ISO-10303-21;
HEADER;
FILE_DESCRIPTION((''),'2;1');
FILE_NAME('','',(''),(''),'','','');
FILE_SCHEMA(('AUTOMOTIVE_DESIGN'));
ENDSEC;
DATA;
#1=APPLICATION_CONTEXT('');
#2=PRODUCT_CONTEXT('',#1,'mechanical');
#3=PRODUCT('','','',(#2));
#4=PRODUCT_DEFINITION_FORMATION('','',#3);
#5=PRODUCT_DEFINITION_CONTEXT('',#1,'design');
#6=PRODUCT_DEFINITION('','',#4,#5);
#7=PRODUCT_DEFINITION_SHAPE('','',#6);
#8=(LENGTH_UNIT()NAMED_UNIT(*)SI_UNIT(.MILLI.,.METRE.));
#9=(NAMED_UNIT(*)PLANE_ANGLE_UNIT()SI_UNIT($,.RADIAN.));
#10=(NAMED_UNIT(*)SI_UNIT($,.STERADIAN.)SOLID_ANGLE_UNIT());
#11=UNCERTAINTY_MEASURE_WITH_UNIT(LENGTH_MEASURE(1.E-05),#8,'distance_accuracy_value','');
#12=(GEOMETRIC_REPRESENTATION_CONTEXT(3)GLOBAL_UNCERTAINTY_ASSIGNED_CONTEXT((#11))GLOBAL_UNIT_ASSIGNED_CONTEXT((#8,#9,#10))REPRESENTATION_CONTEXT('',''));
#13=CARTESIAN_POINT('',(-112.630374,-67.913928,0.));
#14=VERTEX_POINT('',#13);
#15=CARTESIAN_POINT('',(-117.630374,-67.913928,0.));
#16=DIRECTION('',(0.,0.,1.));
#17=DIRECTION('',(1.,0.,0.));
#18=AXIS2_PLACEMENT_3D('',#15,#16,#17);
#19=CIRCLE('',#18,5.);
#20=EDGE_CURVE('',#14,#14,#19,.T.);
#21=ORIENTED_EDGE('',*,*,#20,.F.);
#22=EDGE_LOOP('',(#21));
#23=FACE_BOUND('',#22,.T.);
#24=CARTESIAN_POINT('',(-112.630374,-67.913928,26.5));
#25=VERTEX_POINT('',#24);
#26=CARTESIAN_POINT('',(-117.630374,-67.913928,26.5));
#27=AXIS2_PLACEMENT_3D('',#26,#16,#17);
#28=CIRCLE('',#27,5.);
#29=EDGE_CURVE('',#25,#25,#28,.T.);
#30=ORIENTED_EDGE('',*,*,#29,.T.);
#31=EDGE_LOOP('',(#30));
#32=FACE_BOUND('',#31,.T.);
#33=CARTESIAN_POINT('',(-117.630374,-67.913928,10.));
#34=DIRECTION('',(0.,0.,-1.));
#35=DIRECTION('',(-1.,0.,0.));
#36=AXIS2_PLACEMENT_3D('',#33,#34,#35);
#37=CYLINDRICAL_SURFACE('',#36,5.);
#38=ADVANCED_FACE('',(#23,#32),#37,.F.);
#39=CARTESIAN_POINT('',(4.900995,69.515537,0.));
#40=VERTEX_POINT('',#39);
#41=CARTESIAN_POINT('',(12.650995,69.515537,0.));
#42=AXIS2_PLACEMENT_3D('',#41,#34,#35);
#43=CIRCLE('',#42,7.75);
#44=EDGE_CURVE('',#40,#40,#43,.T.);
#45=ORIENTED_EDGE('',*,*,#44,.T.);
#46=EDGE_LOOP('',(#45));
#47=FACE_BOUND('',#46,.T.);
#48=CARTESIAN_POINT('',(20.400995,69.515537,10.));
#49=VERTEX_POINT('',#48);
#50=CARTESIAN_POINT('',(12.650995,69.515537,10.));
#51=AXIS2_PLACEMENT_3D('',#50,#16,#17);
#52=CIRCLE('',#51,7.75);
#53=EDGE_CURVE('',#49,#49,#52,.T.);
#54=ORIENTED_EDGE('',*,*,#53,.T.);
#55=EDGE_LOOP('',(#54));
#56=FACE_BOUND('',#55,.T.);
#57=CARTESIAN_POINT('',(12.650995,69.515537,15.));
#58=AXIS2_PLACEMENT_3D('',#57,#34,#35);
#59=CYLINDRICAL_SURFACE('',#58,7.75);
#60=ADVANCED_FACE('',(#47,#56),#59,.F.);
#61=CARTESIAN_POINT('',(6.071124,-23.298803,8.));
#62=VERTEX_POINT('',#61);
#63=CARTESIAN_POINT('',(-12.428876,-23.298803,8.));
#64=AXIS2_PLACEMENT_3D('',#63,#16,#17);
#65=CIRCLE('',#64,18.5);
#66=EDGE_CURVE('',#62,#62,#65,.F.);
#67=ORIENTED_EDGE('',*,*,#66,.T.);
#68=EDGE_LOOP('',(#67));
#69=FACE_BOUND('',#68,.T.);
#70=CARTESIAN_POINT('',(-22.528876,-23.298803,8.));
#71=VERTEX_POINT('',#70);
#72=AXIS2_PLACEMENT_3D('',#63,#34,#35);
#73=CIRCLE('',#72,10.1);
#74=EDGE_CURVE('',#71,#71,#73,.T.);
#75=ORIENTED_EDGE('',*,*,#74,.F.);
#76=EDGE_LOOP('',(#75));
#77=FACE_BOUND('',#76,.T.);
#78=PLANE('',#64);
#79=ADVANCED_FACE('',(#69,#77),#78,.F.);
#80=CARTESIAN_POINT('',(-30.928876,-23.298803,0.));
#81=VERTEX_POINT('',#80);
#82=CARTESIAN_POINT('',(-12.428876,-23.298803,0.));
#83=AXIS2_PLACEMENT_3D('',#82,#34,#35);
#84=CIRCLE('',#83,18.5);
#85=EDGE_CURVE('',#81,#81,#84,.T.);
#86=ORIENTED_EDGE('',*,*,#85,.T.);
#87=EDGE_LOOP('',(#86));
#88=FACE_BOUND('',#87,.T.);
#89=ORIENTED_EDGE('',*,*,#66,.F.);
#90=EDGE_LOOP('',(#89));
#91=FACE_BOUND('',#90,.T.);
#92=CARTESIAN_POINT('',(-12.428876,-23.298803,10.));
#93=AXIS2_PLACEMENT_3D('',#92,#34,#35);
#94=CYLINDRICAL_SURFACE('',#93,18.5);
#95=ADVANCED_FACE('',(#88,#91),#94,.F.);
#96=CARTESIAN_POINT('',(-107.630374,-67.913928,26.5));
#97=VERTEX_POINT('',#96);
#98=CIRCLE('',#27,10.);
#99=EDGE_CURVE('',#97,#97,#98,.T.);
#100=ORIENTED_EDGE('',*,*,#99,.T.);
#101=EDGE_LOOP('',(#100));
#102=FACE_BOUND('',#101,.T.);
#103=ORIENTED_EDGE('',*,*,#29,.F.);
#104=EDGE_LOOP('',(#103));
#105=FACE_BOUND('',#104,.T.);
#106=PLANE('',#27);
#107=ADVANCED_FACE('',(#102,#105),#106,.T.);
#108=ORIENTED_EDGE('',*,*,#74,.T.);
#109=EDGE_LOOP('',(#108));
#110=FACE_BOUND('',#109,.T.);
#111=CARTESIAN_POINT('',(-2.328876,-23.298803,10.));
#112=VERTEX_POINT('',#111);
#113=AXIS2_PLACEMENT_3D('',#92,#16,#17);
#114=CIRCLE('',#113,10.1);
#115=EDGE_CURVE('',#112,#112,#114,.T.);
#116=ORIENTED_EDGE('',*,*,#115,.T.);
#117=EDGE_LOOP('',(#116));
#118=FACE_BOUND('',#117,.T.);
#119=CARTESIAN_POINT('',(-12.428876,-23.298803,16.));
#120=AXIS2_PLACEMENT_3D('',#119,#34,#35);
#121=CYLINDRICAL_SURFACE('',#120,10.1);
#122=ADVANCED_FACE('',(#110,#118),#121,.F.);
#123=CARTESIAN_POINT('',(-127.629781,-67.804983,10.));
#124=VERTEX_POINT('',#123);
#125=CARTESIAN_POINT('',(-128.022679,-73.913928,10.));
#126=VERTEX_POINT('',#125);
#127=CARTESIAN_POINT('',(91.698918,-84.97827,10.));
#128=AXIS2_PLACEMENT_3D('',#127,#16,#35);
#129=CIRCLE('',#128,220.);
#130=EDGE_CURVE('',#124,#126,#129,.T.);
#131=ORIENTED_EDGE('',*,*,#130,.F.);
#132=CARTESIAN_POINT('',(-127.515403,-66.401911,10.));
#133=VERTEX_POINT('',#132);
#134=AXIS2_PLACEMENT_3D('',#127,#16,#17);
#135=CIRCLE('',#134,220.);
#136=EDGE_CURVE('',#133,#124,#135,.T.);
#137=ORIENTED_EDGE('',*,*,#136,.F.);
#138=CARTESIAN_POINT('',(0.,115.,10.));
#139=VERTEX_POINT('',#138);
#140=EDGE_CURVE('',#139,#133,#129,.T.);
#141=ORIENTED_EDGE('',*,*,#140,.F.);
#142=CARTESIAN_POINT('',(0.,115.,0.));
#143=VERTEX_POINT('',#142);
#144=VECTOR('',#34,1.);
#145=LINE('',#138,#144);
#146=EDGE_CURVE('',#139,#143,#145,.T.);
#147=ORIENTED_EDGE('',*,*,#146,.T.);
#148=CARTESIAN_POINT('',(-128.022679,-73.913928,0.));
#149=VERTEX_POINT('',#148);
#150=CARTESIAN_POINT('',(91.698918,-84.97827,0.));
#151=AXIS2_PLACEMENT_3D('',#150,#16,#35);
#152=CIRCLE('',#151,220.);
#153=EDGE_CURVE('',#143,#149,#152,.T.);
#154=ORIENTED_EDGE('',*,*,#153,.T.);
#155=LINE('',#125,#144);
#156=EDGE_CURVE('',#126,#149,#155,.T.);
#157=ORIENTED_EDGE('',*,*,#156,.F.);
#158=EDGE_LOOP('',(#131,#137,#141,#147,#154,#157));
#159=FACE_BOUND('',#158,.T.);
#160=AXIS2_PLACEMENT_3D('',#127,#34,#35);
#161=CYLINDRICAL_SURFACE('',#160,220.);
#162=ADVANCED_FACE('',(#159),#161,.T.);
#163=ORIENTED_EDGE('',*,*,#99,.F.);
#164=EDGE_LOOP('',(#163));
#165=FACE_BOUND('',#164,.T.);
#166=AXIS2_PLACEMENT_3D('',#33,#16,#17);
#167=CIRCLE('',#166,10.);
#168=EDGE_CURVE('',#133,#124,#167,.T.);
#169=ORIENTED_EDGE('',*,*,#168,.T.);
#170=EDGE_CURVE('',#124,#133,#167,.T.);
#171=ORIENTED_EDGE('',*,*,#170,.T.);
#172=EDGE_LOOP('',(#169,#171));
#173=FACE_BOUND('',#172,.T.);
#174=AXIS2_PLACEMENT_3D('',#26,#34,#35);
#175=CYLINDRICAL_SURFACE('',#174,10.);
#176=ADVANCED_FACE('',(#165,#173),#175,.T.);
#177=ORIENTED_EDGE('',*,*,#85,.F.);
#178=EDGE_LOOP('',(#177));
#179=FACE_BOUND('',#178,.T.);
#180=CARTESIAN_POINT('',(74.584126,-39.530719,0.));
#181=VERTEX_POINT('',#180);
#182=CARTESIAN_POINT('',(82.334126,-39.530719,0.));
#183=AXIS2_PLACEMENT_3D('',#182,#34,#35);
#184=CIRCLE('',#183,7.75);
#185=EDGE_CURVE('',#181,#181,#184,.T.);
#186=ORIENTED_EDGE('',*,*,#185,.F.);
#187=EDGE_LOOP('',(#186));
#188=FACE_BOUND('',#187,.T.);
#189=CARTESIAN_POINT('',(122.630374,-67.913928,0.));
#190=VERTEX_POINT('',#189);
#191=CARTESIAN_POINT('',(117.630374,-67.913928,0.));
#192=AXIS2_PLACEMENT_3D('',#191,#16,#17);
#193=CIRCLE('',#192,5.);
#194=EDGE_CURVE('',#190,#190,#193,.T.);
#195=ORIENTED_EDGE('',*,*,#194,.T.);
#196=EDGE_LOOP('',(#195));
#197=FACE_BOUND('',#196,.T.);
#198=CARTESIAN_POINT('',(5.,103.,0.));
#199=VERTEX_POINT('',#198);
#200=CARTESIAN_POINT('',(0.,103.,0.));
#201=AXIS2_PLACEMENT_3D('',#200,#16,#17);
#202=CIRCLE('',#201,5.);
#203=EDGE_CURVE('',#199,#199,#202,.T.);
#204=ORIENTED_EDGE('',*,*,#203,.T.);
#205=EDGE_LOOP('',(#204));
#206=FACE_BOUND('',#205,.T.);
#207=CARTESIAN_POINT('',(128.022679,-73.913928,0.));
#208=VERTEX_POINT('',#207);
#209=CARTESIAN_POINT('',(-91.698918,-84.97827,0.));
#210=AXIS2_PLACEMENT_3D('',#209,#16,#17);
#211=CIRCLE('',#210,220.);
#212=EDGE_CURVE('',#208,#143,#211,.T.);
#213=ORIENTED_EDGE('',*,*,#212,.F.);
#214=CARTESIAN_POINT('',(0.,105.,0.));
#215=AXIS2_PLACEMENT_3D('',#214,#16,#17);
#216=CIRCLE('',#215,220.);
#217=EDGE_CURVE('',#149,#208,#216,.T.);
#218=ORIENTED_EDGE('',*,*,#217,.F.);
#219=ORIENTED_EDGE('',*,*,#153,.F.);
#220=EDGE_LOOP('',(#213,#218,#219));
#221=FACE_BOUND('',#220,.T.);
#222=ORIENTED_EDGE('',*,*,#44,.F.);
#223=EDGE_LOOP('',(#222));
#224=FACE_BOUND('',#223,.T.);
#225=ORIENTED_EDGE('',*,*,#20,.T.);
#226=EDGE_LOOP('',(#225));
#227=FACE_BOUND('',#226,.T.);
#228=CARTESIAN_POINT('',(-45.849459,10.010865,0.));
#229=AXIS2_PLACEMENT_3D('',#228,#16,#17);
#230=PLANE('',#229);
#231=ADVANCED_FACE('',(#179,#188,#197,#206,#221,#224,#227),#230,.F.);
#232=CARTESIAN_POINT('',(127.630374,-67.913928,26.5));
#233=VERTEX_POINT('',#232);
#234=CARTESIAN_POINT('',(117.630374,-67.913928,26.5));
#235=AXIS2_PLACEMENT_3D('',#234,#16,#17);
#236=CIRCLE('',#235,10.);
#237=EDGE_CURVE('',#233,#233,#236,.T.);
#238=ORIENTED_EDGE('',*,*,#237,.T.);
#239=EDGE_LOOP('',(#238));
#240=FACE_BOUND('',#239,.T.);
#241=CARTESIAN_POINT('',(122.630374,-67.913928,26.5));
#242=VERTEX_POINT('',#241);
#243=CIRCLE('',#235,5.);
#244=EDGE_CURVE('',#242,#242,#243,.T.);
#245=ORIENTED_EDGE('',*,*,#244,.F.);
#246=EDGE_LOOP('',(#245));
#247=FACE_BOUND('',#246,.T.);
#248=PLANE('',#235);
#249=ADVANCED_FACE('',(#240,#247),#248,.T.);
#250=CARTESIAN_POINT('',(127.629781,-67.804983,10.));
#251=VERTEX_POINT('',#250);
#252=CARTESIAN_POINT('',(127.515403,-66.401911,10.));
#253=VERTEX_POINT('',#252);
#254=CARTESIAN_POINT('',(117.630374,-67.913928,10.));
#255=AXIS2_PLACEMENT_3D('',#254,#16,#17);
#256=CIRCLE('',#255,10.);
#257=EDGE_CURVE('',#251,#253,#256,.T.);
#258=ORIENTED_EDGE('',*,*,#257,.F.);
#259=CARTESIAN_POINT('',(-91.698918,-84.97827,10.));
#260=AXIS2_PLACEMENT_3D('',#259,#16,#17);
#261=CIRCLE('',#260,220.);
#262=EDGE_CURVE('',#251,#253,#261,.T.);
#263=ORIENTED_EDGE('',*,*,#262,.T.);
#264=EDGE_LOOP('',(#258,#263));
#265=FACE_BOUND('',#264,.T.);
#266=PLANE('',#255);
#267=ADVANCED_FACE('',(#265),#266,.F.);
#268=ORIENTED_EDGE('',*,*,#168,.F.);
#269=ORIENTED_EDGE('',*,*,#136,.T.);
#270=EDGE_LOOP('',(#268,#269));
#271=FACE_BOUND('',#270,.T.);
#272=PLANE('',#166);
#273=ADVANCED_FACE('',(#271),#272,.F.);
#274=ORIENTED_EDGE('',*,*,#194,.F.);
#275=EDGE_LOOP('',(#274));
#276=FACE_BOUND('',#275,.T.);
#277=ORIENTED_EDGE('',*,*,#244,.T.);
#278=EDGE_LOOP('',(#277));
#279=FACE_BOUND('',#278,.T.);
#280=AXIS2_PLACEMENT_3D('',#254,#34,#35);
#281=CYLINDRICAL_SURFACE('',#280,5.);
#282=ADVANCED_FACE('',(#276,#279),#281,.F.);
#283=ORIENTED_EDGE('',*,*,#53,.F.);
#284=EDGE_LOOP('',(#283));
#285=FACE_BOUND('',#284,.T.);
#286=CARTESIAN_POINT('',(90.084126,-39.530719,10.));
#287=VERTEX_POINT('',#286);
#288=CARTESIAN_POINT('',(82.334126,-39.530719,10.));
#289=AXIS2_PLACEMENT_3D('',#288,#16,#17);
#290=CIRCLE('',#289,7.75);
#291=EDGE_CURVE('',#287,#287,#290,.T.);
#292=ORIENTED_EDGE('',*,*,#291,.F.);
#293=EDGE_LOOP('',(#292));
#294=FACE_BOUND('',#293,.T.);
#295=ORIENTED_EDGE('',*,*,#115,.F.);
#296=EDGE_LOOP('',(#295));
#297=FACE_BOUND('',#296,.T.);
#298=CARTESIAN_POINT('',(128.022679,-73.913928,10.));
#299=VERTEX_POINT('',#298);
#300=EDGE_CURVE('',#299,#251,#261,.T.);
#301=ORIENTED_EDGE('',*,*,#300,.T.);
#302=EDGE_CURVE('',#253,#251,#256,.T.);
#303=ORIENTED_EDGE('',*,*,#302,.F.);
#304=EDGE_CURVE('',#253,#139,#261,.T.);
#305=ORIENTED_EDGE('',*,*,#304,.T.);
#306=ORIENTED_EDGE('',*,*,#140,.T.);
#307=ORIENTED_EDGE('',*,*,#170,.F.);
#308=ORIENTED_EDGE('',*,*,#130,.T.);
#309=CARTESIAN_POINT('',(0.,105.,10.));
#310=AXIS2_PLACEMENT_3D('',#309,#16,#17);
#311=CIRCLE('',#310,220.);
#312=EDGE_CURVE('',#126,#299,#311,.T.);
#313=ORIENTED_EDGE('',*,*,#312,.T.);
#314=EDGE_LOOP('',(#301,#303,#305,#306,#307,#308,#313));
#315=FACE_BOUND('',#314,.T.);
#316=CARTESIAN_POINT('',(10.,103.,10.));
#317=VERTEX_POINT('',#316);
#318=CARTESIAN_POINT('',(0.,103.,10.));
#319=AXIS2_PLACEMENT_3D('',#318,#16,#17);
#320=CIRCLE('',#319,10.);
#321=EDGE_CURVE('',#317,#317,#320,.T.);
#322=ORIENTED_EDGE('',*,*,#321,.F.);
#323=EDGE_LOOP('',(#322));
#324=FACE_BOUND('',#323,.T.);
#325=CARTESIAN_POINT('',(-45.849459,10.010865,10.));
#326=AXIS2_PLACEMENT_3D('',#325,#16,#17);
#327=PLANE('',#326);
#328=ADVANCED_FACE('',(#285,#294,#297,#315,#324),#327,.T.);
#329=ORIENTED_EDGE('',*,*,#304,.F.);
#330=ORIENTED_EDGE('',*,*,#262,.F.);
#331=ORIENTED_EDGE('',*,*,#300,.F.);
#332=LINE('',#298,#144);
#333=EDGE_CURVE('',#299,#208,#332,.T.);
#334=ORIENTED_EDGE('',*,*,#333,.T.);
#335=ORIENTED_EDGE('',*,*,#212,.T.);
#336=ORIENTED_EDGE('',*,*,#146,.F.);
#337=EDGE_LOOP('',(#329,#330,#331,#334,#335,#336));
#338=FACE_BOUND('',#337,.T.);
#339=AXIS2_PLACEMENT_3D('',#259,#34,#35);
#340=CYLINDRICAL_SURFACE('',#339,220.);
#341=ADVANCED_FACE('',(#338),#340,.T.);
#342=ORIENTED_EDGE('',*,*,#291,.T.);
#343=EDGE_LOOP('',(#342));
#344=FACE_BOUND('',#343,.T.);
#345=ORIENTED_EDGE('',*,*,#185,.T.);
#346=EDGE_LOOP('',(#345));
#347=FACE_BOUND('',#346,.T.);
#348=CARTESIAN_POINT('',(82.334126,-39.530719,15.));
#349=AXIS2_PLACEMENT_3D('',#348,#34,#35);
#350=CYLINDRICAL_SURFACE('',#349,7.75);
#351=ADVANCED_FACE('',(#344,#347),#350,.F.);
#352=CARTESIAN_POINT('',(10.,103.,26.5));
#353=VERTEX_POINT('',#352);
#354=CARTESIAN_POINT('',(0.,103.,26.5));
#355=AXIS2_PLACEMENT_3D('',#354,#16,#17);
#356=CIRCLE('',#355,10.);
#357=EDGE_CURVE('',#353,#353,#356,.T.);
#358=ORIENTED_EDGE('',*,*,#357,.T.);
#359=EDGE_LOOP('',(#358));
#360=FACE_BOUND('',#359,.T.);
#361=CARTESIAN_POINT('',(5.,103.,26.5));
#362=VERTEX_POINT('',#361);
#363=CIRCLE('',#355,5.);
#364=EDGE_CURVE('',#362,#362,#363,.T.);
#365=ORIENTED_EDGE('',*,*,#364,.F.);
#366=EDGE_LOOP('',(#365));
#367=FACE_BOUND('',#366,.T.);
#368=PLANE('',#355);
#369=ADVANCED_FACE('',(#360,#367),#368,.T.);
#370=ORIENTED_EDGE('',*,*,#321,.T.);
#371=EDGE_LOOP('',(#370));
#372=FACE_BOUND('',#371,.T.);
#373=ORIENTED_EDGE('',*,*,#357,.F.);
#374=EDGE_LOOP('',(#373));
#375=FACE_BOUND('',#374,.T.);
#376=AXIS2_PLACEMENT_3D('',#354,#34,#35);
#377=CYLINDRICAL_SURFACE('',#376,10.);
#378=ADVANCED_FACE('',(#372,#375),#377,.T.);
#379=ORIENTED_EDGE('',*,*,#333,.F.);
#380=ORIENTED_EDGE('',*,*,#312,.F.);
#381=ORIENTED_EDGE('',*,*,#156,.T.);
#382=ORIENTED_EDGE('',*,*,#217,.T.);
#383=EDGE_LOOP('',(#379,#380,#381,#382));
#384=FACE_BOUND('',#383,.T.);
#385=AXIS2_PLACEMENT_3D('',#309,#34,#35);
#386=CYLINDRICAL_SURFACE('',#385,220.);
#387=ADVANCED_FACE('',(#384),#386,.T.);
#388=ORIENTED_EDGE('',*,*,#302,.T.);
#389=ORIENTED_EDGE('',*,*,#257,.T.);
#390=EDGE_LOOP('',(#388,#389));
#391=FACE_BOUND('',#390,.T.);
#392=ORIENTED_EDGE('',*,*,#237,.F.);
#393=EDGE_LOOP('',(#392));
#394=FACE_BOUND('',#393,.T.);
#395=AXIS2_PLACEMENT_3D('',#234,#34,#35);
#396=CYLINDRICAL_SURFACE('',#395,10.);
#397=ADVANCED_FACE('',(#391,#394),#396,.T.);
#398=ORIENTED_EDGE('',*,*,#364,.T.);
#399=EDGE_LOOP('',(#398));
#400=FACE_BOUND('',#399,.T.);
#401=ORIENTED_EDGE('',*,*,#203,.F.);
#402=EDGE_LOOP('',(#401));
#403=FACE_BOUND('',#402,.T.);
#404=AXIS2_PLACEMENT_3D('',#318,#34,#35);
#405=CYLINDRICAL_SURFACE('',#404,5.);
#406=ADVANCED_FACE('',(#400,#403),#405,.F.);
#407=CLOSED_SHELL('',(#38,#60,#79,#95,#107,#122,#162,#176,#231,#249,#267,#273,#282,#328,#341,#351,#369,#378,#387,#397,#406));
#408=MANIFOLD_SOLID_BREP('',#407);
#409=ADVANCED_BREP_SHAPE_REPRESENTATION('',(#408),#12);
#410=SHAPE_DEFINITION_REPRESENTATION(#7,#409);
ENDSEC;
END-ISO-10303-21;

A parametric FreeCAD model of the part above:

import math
import FreeCAD as App
import Part
import Sketcher

V = App.Vector

doc = App.newDocument("Part")
body = doc.addObject("PartDesign::Body", "Body")

# Sketch on XY plane
sketch1 = doc.addObject("Sketcher::SketchObject", "Sketch")
body.addObject(sketch1)
sketch1.AttachmentSupport = (doc.XY_Plane, [""])
sketch1.MapMode = "FlatFace"
sketch1.addGeometry(Part.ArcOfCircle(Part.Circle(V(91.698918, -84.97827, 0), V(0, 0, 1), 220), math.radians(114.633558), math.radians(177.117238)), False)
sketch1.addGeometry(Part.ArcOfCircle(Part.Circle(V(0, 105, 0), V(0, 0, 1), 220), math.radians(-125.585788), math.radians(-54.414212)), False)
sketch1.addGeometry(Part.ArcOfCircle(Part.Circle(V(-91.698918, -84.97827, 0), V(0, 0, 1), 220), math.radians(2.882762), math.radians(65.366442)), False)
sketch1.addGeometry(Part.Circle(V(117.630374, -67.913928, 0), V(0, 0, 1), 5), False)
sketch1.addGeometry(Part.Circle(V(-117.630374, -67.913928, 0), V(0, 0, 1), 5), False)
sketch1.addGeometry(Part.Circle(V(0, 103, 0), V(0, 0, 1), 5), False)
sketch1.addConstraint(Sketcher.Constraint("Coincident", 0, 2, 1, 1))
sketch1.addConstraint(Sketcher.Constraint("Coincident", 1, 2, 2, 1))
sketch1.addConstraint(Sketcher.Constraint("Coincident", 2, 2, 0, 1))
sketch1.addConstraint(Sketcher.Constraint("Equal", 0, 1))
sketch1.addConstraint(Sketcher.Constraint("Equal", 1, 2))
sketch1.addConstraint(Sketcher.Constraint("Equal", 3, 4))
sketch1.addConstraint(Sketcher.Constraint("Equal", 4, 5))
sketch1.addConstraint(Sketcher.Constraint("Symmetric", 0, 3, 2, 3, -2))
sketch1.addConstraint(Sketcher.Constraint("Symmetric", 3, 3, 4, 3, -2))
sketch1.addConstraint(Sketcher.Constraint("PointOnObject", 1, 3, -2))
sketch1.addConstraint(Sketcher.Constraint("PointOnObject", 5, 3, -2))
sketch1.addConstraint(Sketcher.Constraint("Diameter", 3, 10.0))
sketch1.addConstraint(Sketcher.Constraint("Radius", 0, 220.0))
sketch1.addConstraint(Sketcher.Constraint("DistanceY", -1, 1, 1, 3, 105.0))
sketch1.addConstraint(Sketcher.Constraint("DistanceY", -1, 1, 5, 3, 103.0))
sketch1.addConstraint(Sketcher.Constraint("DistanceY", -1, 1, 2, 2, 115.0))
sketch1.addConstraint(Sketcher.Constraint("DistanceY", 0, 2, 4, 3, 6.0))
sketch1.addConstraint(Sketcher.Constraint("DistanceX", -1, 1, 0, 3, 91.698918))
sketch1.addConstraint(Sketcher.Constraint("DistanceX", 4, 3, 3, 3, 235.260748))
pad1 = doc.addObject("PartDesign::Pad", "Pad")
body.addObject(pad1)
pad1.Profile = sketch1
pad1.Length = 10

# Sketch on XY plane
sketch2 = doc.addObject("Sketcher::SketchObject", "Sketch001")
body.addObject(sketch2)
sketch2.AttachmentSupport = (doc.XY_Plane, [""])
sketch2.MapMode = "FlatFace"
sketch2.AttachmentOffset = App.Placement(V(0, 0, 10), App.Rotation())
sketch2.addGeometry(Part.Circle(V(0, 103, 0), V(0, 0, 1), 10), False)
sketch2.addGeometry(Part.Circle(V(0, 103, 0), V(0, 0, 1), 5), False)
sketch2.addGeometry(Part.Circle(V(-117.630374, -67.913928, 0), V(0, 0, 1), 10), False)
sketch2.addGeometry(Part.Circle(V(-117.630374, -67.913928, 0), V(0, 0, 1), 5), False)
sketch2.addGeometry(Part.Circle(V(117.630374, -67.913928, 0), V(0, 0, 1), 10), False)
sketch2.addGeometry(Part.Circle(V(117.630374, -67.913928, 0), V(0, 0, 1), 5), False)
sketch2.addConstraint(Sketcher.Constraint("Coincident", 1, 3, 0, 3))
sketch2.addConstraint(Sketcher.Constraint("Coincident", 3, 3, 2, 3))
sketch2.addConstraint(Sketcher.Constraint("Coincident", 5, 3, 4, 3))
sketch2.addConstraint(Sketcher.Constraint("Equal", 0, 2))
sketch2.addConstraint(Sketcher.Constraint("Equal", 1, 3))
sketch2.addConstraint(Sketcher.Constraint("Equal", 2, 4))
sketch2.addConstraint(Sketcher.Constraint("Equal", 3, 5))
sketch2.addConstraint(Sketcher.Constraint("Symmetric", 2, 3, 4, 3, -2))
sketch2.addConstraint(Sketcher.Constraint("PointOnObject", 0, 3, -2))
sketch2.addConstraint(Sketcher.Constraint("Diameter", 0, 20.0))
sketch2.addConstraint(Sketcher.Constraint("Diameter", 1, 10.0))
sketch2.addConstraint(Sketcher.Constraint("DistanceY", -1, 1, 0, 3, 103.0))
sketch2.addConstraint(Sketcher.Constraint("DistanceY", 2, 3, -1, 1, 67.913928))
sketch2.addConstraint(Sketcher.Constraint("DistanceX", 2, 3, 4, 3, 235.260748))
pad2 = doc.addObject("PartDesign::Pad", "Pad001")
body.addObject(pad2)
pad2.Profile = sketch2
pad2.Length = 16.5

# Sketch on XY plane
sketch3 = doc.addObject("Sketcher::SketchObject", "Sketch002")
body.addObject(sketch3)
sketch3.AttachmentSupport = (doc.XY_Plane, [""])
sketch3.MapMode = "FlatFace"
sketch3.addGeometry(Part.Circle(V(12.650995, 69.515537, 0), V(0, 0, 1), 7.75), False)
sketch3.addGeometry(Part.Circle(V(82.334126, -39.530719, 0), V(0, 0, 1), 7.75), False)
sketch3.addGeometry(Part.Circle(V(-12.428876, -23.298803, 0), V(0, 0, 1), 15), False)
sketch3.addConstraint(Sketcher.Constraint("Equal", 0, 1))
sketch3.addConstraint(Sketcher.Constraint("Diameter", 2, 30.0))
sketch3.addConstraint(Sketcher.Constraint("Diameter", 0, 15.5))
sketch3.addConstraint(Sketcher.Constraint("DistanceX", 2, 3, 1, 3, 94.763002))
sketch3.addConstraint(Sketcher.Constraint("DistanceY", 1, 3, -1, 1, 39.530719))
sketch3.addConstraint(Sketcher.Constraint("DistanceX", 0, 3, 1, 3, 69.683131))
sketch3.addConstraint(Sketcher.Constraint("DistanceY", 2, 3, 0, 3, 92.81434))
sketch3.addConstraint(Sketcher.Constraint("DistanceX", -1, 1, 0, 3, 12.650995))
sketch3.addConstraint(Sketcher.Constraint("DistanceY", -1, 1, 0, 3, 69.515537))
pocket1 = doc.addObject("PartDesign::Pocket", "Pocket")
body.addObject(pocket1)
pocket1.Profile = sketch3
pocket1.Length = 15
pocket1.Reversed = True

# Sketch on XY plane
sketch4 = doc.addObject("Sketcher::SketchObject", "Sketch003")
body.addObject(sketch4)
sketch4.AttachmentSupport = (doc.XY_Plane, [""])
sketch4.MapMode = "FlatFace"
sketch4.addGeometry(Part.Circle(V(-12.428876, -23.298803, 0), V(0, 0, 1), 18.5), False)
sketch4.addConstraint(Sketcher.Constraint("Diameter", 0, 37.0))
sketch4.addConstraint(Sketcher.Constraint("DistanceX", 0, 3, -1, 1, 12.428876))
sketch4.addConstraint(Sketcher.Constraint("DistanceY", 0, 3, -1, 1, 23.298803))
pocket2 = doc.addObject("PartDesign::Pocket", "Pocket001")
body.addObject(pocket2)
pocket2.Profile = sketch4
pocket2.Length = 10
pocket2.Reversed = True

# Sketch on XY plane
sketch5 = doc.addObject("Sketcher::SketchObject", "Sketch004")
body.addObject(sketch5)
sketch5.AttachmentSupport = (doc.XY_Plane, [""])
sketch5.MapMode = "FlatFace"
sketch5.AttachmentOffset = App.Placement(V(0, 0, 8), App.Rotation())
sketch5.addGeometry(Part.Circle(V(-12.428876, -23.298803, 0), V(0, 0, 1), 18.5), False)
sketch5.addConstraint(Sketcher.Constraint("Diameter", 0, 37.0))
sketch5.addConstraint(Sketcher.Constraint("DistanceX", 0, 3, -1, 1, 12.428876))
sketch5.addConstraint(Sketcher.Constraint("DistanceY", 0, 3, -1, 1, 23.298803))
pad3 = doc.addObject("PartDesign::Pad", "Pad002")
body.addObject(pad3)
pad3.Profile = sketch5
pad3.Length = 2

# Sketch on XY plane
sketch6 = doc.addObject("Sketcher::SketchObject", "Sketch005")
body.addObject(sketch6)
sketch6.AttachmentSupport = (doc.XY_Plane, [""])
sketch6.MapMode = "FlatFace"
sketch6.AttachmentOffset = App.Placement(V(0, 0, 8), App.Rotation())
sketch6.addGeometry(Part.Circle(V(-12.428876, -23.298803, 0), V(0, 0, 1), 10.1), False)
sketch6.addConstraint(Sketcher.Constraint("Diameter", 0, 20.2))
sketch6.addConstraint(Sketcher.Constraint("DistanceX", 0, 3, -1, 1, 12.428876))
sketch6.addConstraint(Sketcher.Constraint("DistanceY", 0, 3, -1, 1, 23.298803))
pocket3 = doc.addObject("PartDesign::Pocket", "Pocket002")
body.addObject(pocket3)
pocket3.Profile = sketch6
pocket3.Length = 8
pocket3.Reversed = True

doc.recompute()
